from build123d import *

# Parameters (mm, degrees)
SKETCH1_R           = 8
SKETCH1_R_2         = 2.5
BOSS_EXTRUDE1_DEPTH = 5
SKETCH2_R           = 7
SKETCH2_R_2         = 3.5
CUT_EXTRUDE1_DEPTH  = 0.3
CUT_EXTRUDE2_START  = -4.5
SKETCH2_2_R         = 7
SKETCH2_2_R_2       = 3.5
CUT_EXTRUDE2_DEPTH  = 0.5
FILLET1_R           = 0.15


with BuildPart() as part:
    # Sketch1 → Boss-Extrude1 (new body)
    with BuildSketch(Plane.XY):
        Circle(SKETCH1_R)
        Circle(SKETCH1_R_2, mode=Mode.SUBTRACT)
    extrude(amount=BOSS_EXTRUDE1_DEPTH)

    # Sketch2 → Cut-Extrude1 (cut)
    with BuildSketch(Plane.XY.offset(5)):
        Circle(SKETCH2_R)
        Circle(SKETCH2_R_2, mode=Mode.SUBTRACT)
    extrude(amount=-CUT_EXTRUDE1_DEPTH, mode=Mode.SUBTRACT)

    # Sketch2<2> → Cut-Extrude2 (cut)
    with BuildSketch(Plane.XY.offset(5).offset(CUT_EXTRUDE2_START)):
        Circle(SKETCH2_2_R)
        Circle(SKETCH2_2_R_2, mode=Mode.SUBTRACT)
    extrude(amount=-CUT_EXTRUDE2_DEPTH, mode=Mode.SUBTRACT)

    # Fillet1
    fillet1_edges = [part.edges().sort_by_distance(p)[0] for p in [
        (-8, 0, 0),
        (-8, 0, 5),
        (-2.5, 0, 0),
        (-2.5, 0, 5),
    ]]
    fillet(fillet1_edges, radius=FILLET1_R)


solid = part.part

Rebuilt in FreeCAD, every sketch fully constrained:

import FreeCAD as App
import Part
import Sketcher
from FreeCAD import Vector
Q = App.Units.Quantity


def edges_at(feature, points):
    """Names of the edges that pass closest to the given points."""
    edges = feature.Shape.Edges
    near = lambda p: min(range(len(edges)), key=lambda i: edges[i].distToShape(Part.Vertex(*p))[0])
    return sorted({f"Edge{near(p) + 1}" for p in points})

doc = App.newDocument("Part")
body = doc.addObject("PartDesign::Body", "Body")

sketch1 = doc.addObject("Sketcher::SketchObject", "Sketch")
body.addObject(sketch1)
sketch1.AttachmentSupport = (doc.XY_Plane, [""])
sketch1.MapMode = "FlatFace"
sketch1.addGeometry([
    Part.Circle(Vector(0, 0, 0), Vector(0, 0, 1), 8),
    Part.Circle(Vector(0, 0, 0), Vector(0, 0, 1), 2.5),
], False)
sketch1.addConstraint([
    Sketcher.Constraint("Coincident", 0, 3, -1, 1),
    Sketcher.Constraint("Coincident", 1, 3, -1, 1),
    Sketcher.Constraint("Diameter", 0, Q("16 mm")),
    Sketcher.Constraint("Diameter", 1, Q("5 mm")),
])
pad1 = doc.addObject("PartDesign::Pad", "Pad")
body.addObject(pad1)
pad1.Profile = sketch1
pad1.Length = 5

sketch2 = doc.addObject("Sketcher::SketchObject", "Sketch001")
body.addObject(sketch2)
sketch2.AttachmentSupport = (doc.XY_Plane, [""])
sketch2.MapMode = "FlatFace"
sketch2.AttachmentOffset = App.Placement(Vector(0, 0, 5), App.Rotation())
sketch2.addGeometry([
    Part.Circle(Vector(0, 0, 0), Vector(0, 0, 1), 7),
    Part.Circle(Vector(0, 0, 0), Vector(0, 0, 1), 3.5),
], False)
sketch2.addConstraint([
    Sketcher.Constraint("Coincident", 0, 3, -1, 1),
    Sketcher.Constraint("Coincident", 1, 3, -1, 1),
    Sketcher.Constraint("Diameter", 0, Q("14 mm")),
    Sketcher.Constraint("Diameter", 1, Q("7 mm")),
])
pocket1 = doc.addObject("PartDesign::Pocket", "Pocket")
body.addObject(pocket1)
pocket1.Profile = sketch2
pocket1.Length = 0.3

sketch3 = doc.addObject("Sketcher::SketchObject", "Sketch002")
body.addObject(sketch3)
sketch3.AttachmentSupport = (doc.XY_Plane, [""])
sketch3.MapMode = "FlatFace"
sketch3.AttachmentOffset = App.Placement(Vector(0, 0, 0.5), App.Rotation())
sketch3.addGeometry([
    Part.Circle(Vector(0, 0, 0), Vector(0, 0, 1), 7),
    Part.Circle(Vector(0, 0, 0), Vector(0, 0, 1), 3.5),
], False)
sketch3.addConstraint([
    Sketcher.Constraint("Coincident", 0, 3, -1, 1),
    Sketcher.Constraint("Coincident", 1, 3, -1, 1),
    Sketcher.Constraint("Diameter", 0, Q("14 mm")),
    Sketcher.Constraint("Diameter", 1, Q("7 mm")),
])
pocket2 = doc.addObject("PartDesign::Pocket", "Pocket001")
body.addObject(pocket2)
pocket2.Profile = sketch3
pocket2.Length = 0.5
doc.recompute()

fillet = doc.addObject("PartDesign::Fillet", "Fillet")
body.addObject(fillet)
fillet.Base = (pocket2, edges_at(pocket2, [
    (-8, 0, 0),
    (-8, 0, 5),
    (-2.5, 0, 0),
    (-2.5, 0, 5),
]))
fillet.Radius = 0.15

doc.recompute()
